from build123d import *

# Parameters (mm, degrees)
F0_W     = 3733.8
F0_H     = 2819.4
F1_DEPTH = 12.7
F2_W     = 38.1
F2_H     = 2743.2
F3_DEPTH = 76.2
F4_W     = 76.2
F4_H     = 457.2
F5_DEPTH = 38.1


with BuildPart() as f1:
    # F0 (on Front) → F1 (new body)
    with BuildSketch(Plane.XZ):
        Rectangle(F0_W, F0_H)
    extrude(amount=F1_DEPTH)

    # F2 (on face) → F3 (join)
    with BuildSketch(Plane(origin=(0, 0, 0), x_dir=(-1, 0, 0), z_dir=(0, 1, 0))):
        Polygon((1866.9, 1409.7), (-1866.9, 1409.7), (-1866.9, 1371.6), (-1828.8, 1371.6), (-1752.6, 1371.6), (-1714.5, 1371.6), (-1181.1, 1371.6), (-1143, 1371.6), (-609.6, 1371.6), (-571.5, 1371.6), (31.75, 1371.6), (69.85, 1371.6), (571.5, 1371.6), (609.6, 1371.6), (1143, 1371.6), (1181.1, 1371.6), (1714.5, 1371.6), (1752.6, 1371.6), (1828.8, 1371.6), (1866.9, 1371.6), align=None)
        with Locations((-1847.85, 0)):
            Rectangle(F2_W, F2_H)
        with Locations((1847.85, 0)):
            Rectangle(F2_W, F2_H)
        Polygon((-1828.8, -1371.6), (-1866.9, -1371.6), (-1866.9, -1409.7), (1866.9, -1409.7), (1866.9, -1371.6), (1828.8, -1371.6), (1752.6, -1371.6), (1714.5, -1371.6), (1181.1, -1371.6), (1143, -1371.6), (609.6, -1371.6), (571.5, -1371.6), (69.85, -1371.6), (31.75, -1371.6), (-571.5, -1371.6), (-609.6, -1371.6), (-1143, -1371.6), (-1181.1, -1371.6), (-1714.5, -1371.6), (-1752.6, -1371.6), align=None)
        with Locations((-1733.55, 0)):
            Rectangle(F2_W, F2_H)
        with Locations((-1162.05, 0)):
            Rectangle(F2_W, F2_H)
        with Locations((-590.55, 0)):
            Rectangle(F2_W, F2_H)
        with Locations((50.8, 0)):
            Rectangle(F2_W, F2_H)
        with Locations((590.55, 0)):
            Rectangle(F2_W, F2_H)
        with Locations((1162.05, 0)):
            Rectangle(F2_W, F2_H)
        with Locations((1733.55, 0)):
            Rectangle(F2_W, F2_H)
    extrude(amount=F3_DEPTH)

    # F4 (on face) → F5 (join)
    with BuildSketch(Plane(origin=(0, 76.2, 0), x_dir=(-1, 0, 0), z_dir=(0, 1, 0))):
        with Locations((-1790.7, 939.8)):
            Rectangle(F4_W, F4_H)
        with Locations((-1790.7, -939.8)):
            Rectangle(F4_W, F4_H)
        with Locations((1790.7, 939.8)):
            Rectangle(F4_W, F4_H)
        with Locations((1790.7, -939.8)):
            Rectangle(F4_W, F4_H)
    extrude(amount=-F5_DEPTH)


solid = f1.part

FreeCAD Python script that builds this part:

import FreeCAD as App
import Part
import Sketcher
from FreeCAD import Vector
Q = App.Units.Quantity

doc = App.newDocument("Part")
body = doc.addObject("PartDesign::Body", "Body")

# Sketch on XZ plane
sketch1 = body.newObject("Sketcher::SketchObject", "Sketch")
sketch1.AttachmentSupport = (doc.getObject("XZ_Plane"), [""])
sketch1.MapMode = "FlatFace"
sketch1.addGeometry([
    Part.LineSegment(Vector(-1867, 1410, 0), Vector(-1867, -1410, 0)),
    Part.LineSegment(Vector(-1867, -1410, 0), Vector(1867, -1410, 0)),
    Part.LineSegment(Vector(1867, -1410, 0), Vector(1867, 1410, 0)),
    Part.LineSegment(Vector(1867, 1410, 0), Vector(-1867, 1410, 0)),
], False)
sketch1.addConstraint([
    Sketcher.Constraint("Coincident", 0, 2, 1, 1),
    Sketcher.Constraint("Coincident", 1, 2, 2, 1),
    Sketcher.Constraint("Coincident", 2, 2, 3, 1),
    Sketcher.Constraint("Coincident", 3, 2, 0, 1),
    Sketcher.Constraint("Vertical", 0),
    Sketcher.Constraint("Horizontal", 1),
    Sketcher.Constraint("Vertical", 2),
    Sketcher.Constraint("Horizontal", 3),
    Sketcher.Constraint("Symmetric", 0, 2, 2, 2, -1, 1),
    Sketcher.Constraint("DistanceX", 1, 1, 1, 2, Q("147 in")),
    Sketcher.Constraint("DistanceY", 0, 2, 0, 1, Q("111 in")),
])
pad1 = body.newObject("PartDesign::Pad", "Pad")
pad1.Profile = sketch1
pad1.Length = Q("0.5 in")

# Sketch on XZ plane
sketch2 = body.newObject("Sketcher::SketchObject", "Sketch001")
sketch2.AttachmentSupport = (doc.getObject("XZ_Plane"), [""])
sketch2.MapMode = "FlatFace"
sketch2.addGeometry([
    Part.LineSegment(Vector(-1867, 1410, 0), Vector(1867, 1410, 0)),  # 0
    Part.LineSegment(Vector(1867, 1410, 0), Vector(1867, -1410, 0)),  # 1
    Part.LineSegment(Vector(1867, -1410, 0), Vector(-1867, -1410, 0)),  # 2
    Part.LineSegment(Vector(-1867, -1410, 0), Vector(-1867, 1410, 0)),  # 3
    Part.LineSegment(Vector(1829, -1372, 0), Vector(1829, 1372, 0)),  # 4
    Part.LineSegment(Vector(1829, 1372, 0), Vector(1753, 1372, 0)),  # 5
    Part.LineSegment(Vector(1753, 1372, 0), Vector(1753, -1372, 0)),  # 6
    Part.LineSegment(Vector(1753, -1372, 0), Vector(1829, -1372, 0)),  # 7
    Part.LineSegment(Vector(1714, 1372, 0), Vector(1181, 1372, 0)),  # 8
    Part.LineSegment(Vector(1181, 1372, 0), Vector(1181, -1372, 0)),  # 9
    Part.LineSegment(Vector(1181, -1372, 0), Vector(1714, -1372, 0)),  # 10
    Part.LineSegment(Vector(1714, -1372, 0), Vector(1714, 1372, 0)),  # 11
    Part.LineSegment(Vector(1143, 1372, 0), Vector(610, 1372, 0)),  # 12
    Part.LineSegment(Vector(610, 1372, 0), Vector(610, -1372, 0)),  # 13
    Part.LineSegment(Vector(610, -1372, 0), Vector(1143, -1372, 0)),  # 14
    Part.LineSegment(Vector(1143, -1372, 0), Vector(1143, 1372, 0)),  # 15
    Part.LineSegment(Vector(572, 1372, 0), Vector(-32, 1372, 0)),  # 16
    Part.LineSegment(Vector(-32, 1372, 0), Vector(-32, -1372, 0)),  # 17
    Part.LineSegment(Vector(-32, -1372, 0), Vector(572, -1372, 0)),  # 18
    Part.LineSegment(Vector(572, -1372, 0), Vector(572, 1372, 0)),  # 19
    Part.LineSegment(Vector(-70, 1372, 0), Vector(-572, 1372, 0)),  # 20
    Part.LineSegment(Vector(-572, 1372, 0), Vector(-572, -1372, 0)),  # 21
    Part.LineSegment(Vector(-572, -1372, 0), Vector(-70, -1372, 0)),  # 22
    Part.LineSegment(Vector(-70, -1372, 0), Vector(-70, 1372, 0)),  # 23
    Part.LineSegment(Vector(-610, 1372, 0), Vector(-1143, 1372, 0)),  # 24
    Part.LineSegment(Vector(-1143, 1372, 0), Vector(-1143, -1372, 0)),  # 25
    Part.LineSegment(Vector(-1143, -1372, 0), Vector(-610, -1372, 0)),  # 26
    Part.LineSegment(Vector(-610, -1372, 0), Vector(-610, 1372, 0)),  # 27
    Part.LineSegment(Vector(-1181, 1372, 0), Vector(-1714, 1372, 0)),  # 28
    Part.LineSegment(Vector(-1714, 1372, 0), Vector(-1714, -1372, 0)),  # 29
    Part.LineSegment(Vector(-1714, -1372, 0), Vector(-1181, -1372, 0)),  # 30
    Part.LineSegment(Vector(-1181, -1372, 0), Vector(-1181, 1372, 0)),  # 31
    Part.LineSegment(Vector(-1753, 1372, 0), Vector(-1829, 1372, 0)),  # 32
    Part.LineSegment(Vector(-1829, 1372, 0), Vector(-1829, -1372, 0)),  # 33
    Part.LineSegment(Vector(-1829, -1372, 0), Vector(-1753, -1372, 0)),  # 34
    Part.LineSegment(Vector(-1753, -1372, 0), Vector(-1753, 1372, 0)),  # 35
], False)
sketch2.addConstraint([
    Sketcher.Constraint("Coincident", 0, 2, 1, 1),
    Sketcher.Constraint("Coincident", 1, 2, 2, 1),
    Sketcher.Constraint("Coincident", 2, 2, 3, 1),
    Sketcher.Constraint("Coincident", 3, 2, 0, 1),
    Sketcher.Constraint("Coincident", 4, 2, 5, 1),
    Sketcher.Constraint("Coincident", 5, 2, 6, 1),
    Sketcher.Constraint("Coincident", 6, 2, 7, 1),
    Sketcher.Constraint("Coincident", 7, 2, 4, 1),
    Sketcher.Constraint("Coincident", 8, 2, 9, 1),
    Sketcher.Constraint("Coincident", 9, 2, 10, 1),
    Sketcher.Constraint("Coincident", 10, 2, 11, 1),
    Sketcher.Constraint("Coincident", 11, 2, 8, 1),
    Sketcher.Constraint("Coincident", 12, 2, 13, 1),
    Sketcher.Constraint("Coincident", 13, 2, 14, 1),
    Sketcher.Constraint("Coincident", 14, 2, 15, 1),
    Sketcher.Constraint("Coincident", 15, 2, 12, 1),
    Sketcher.Constraint("Coincident", 16, 2, 17, 1),
    Sketcher.Constraint("Coincident", 17, 2, 18, 1),
    Sketcher.Constraint("Coincident", 18, 2, 19, 1),
    Sketcher.Constraint("Coincident", 19, 2, 16, 1),
    Sketcher.Constraint("Coincident", 20, 2, 21, 1),
    Sketcher.Constraint("Coincident", 21, 2, 22, 1),
    Sketcher.Constraint("Coincident", 22, 2, 23, 1),
    Sketcher.Constraint("Coincident", 23, 2, 20, 1),
    Sketcher.Constraint("Coincident", 24, 2, 25, 1),
    Sketcher.Constraint("Coincident", 25, 2, 26, 1),
    Sketcher.Constraint("Coincident", 26, 2, 27, 1),
    Sketcher.Constraint("Coincident", 27, 2, 24, 1),
    Sketcher.Constraint("Coincident", 28, 2, 29, 1),
    Sketcher.Constraint("Coincident", 29, 2, 30, 1),
    Sketcher.Constraint("Coincident", 30, 2, 31, 1),
    Sketcher.Constraint("Coincident", 31, 2, 28, 1),
    Sketcher.Constraint("Coincident", 32, 2, 33, 1),
    Sketcher.Constraint("Coincident", 33, 2, 34, 1),
    Sketcher.Constraint("Coincident", 34, 2, 35, 1),
    Sketcher.Constraint("Coincident", 35, 2, 32, 1),
    Sketcher.Constraint("Horizontal", 0),
    Sketcher.Constraint("Vertical", 1),
    Sketcher.Constraint("Horizontal", 2),
    Sketcher.Constraint("Vertical", 3),
    Sketcher.Constraint("Vertical", 4),
    Sketcher.Constraint("Horizontal", 5),
    Sketcher.Constraint("Vertical", 6),
    Sketcher.Constraint("Horizontal", 7),
    Sketcher.Constraint("Horizontal", 8),
    Sketcher.Constraint("Vertical", 9),
    Sketcher.Constraint("Horizontal", 10),
    Sketcher.Constraint("Vertical", 11),
    Sketcher.Constraint("Horizontal", 12),
    Sketcher.Constraint("Vertical", 13),
    Sketcher.Constraint("Horizontal", 14),
    Sketcher.Constraint("Vertical", 15),
    Sketcher.Constraint("Horizontal", 16),
    Sketcher.Constraint("Vertical", 17),
    Sketcher.Constraint("Horizontal", 18),
    Sketcher.Constraint("Vertical", 19),
    Sketcher.Constraint("Horizontal", 20),
    Sketcher.Constraint("Vertical", 21),
    Sketcher.Constraint("Horizontal", 22),
    Sketcher.Constraint("Vertical", 23),
    Sketcher.Constraint("Horizontal", 24),
    Sketcher.Constraint("Vertical", 25),
    Sketcher.Constraint("Horizontal", 26),
    Sketcher.Constraint("Vertical", 27),
    Sketcher.Constraint("Horizontal", 28),
    Sketcher.Constraint("Vertical", 29),
    Sketcher.Constraint("Horizontal", 30),
    Sketcher.Constraint("Vertical", 31),
    Sketcher.Constraint("Horizontal", 32),
    Sketcher.Constraint("Vertical", 33),
    Sketcher.Constraint("Horizontal", 34),
    Sketcher.Constraint("Vertical", 35),
    Sketcher.Constraint("Symmetric", 0, 2, 2, 2, -1, 1),
    Sketcher.Constraint("Symmetric", 18, 2, 20, 2, -1, 1),
    Sketcher.Constraint("Symmetric", 14, 2, 24, 2, -1, 1),
    Sketcher.Constraint("Symmetric", 12, 2, 26, 2, -1, 1),
    Sketcher.Constraint("Symmetric", 10, 2, 28, 2, -1, 1),
    Sketcher.Constraint("Symmetric", 8, 2, 30, 2, -1, 1),
    Sketcher.Constraint("Symmetric", 7, 2, 32, 2, -1, 1),
    Sketcher.Constraint("Symmetric", 5, 2, 34, 2, -1, 1),
    Sketcher.Constraint("Horizontal", 5, 2, 8, 2),
    Sketcher.Constraint("Horizontal", 7, 2, 9, 2),
    Sketcher.Constraint("Horizontal", 11, 2, 12, 2),
    Sketcher.Constraint("Horizontal", 10, 2, 13, 2),
    Sketcher.Constraint("Horizontal", 15, 2, 16, 2),
    Sketcher.Constraint("Horizontal", 14, 2, 17, 2),
    Sketcher.Constraint("Horizontal", 19, 2, 20, 2),
    Sketcher.Constraint("Horizontal", 18, 2, 21, 2),
    Sketcher.Constraint("Equal", 10, 12),
    Sketcher.Constraint("DistanceX", 0, 1, 0, 2, Q("147 in")),
    Sketcher.Constraint("DistanceX", 5, 2, 5, 1, Q("3 in")),
    Sketcher.Constraint("DistanceX", 8, 2, 8, 1, Q("21 in")),
    Sketcher.Constraint("DistanceY", 1, 2, 1, 1, Q("111 in")),
    Sketcher.Constraint("DistanceY", 4, 1, 4, 2, Q("108 in")),
    Sketcher.Constraint("DistanceX", -1, 1, 4, 2, Q("72 in")),
    Sketcher.Constraint("DistanceX", -1, 1, 12, 2, Q("24 in")),
    Sketcher.Constraint("DistanceX", 8, 2, 0, 2, Q("27 in")),
    Sketcher.Constraint("DistanceX", 18, 2, 9, 2, Q("24 in")),
    Sketcher.Constraint("DistanceX", 16, 2, 16, 1, Q("23.75 in")),
    Sketcher.Constraint("DistanceX", 20, 2, 20, 1, Q("19.75 in")),
])
pad2 = body.newObject("PartDesign::Pad", "Pad001")
pad2.Profile = sketch2
pad2.Length = Q("3 in")
pad2.Reversed = True

# Sketch on XZ plane
sketch3 = body.newObject("Sketcher::SketchObject", "Sketch002")
sketch3.AttachmentSupport = (doc.getObject("XZ_Plane"), [""])
sketch3.MapMode = "FlatFace"
sketch3.AttachmentOffset = App.Placement(Vector(0, 0, -3 * 25.4), App.Rotation())
sketch3.addGeometry([
    Part.LineSegment(Vector(1829, 1168, 0), Vector(1829, 711, 0)),  # 0
    Part.LineSegment(Vector(1829, 711, 0), Vector(1753, 711, 0)),  # 1
    Part.LineSegment(Vector(1753, 711, 0), Vector(1753, 1168, 0)),  # 2
    Part.LineSegment(Vector(1753, 1168, 0), Vector(1829, 1168, 0)),  # 3
    Part.LineSegment(Vector(1829, -711, 0), Vector(1829, -1168, 0)),  # 4
    Part.LineSegment(Vector(1829, -1168, 0), Vector(1753, -1168, 0)),  # 5
    Part.LineSegment(Vector(1753, -1168, 0), Vector(1753, -711, 0)),  # 6
    Part.LineSegment(Vector(1753, -711, 0), Vector(1829, -711, 0)),  # 7
    Part.LineSegment(Vector(-1753, 1168, 0), Vector(-1753, 711, 0)),  # 8
    Part.LineSegment(Vector(-1753, 711, 0), Vector(-1829, 711, 0)),  # 9
    Part.LineSegment(Vector(-1829, 711, 0), Vector(-1829, 1168, 0)),  # 10
    Part.LineSegment(Vector(-1829, 1168, 0), Vector(-1753, 1168, 0)),  # 11
    Part.LineSegment(Vector(-1753, -711, 0), Vector(-1753, -1168, 0)),  # 12
    Part.LineSegment(Vector(-1753, -1168, 0), Vector(-1829, -1168, 0)),  # 13
    Part.LineSegment(Vector(-1829, -1168, 0), Vector(-1829, -711, 0)),  # 14
    Part.LineSegment(Vector(-1829, -711, 0), Vector(-1753, -711, 0)),  # 15
], False)
sketch3.addConstraint([
    Sketcher.Constraint("Coincident", 0, 2, 1, 1),
    Sketcher.Constraint("Coincident", 1, 2, 2, 1),
    Sketcher.Constraint("Coincident", 2, 2, 3, 1),
    Sketcher.Constraint("Coincident", 3, 2, 0, 1),
    Sketcher.Constraint("Coincident", 4, 2, 5, 1),
    Sketcher.Constraint("Coincident", 5, 2, 6, 1),
    Sketcher.Constraint("Coincident", 6, 2, 7, 1),
    Sketcher.Constraint("Coincident", 7, 2, 4, 1),
    Sketcher.Constraint("Coincident", 8, 2, 9, 1),
    Sketcher.Constraint("Coincident", 9, 2, 10, 1),
    Sketcher.Constraint("Coincident", 10, 2, 11, 1),
    Sketcher.Constraint("Coincident", 11, 2, 8, 1),
    Sketcher.Constraint("Coincident", 12, 2, 13, 1),
    Sketcher.Constraint("Coincident", 13, 2, 14, 1),
    Sketcher.Constraint("Coincident", 14, 2, 15, 1),
    Sketcher.Constraint("Coincident", 15, 2, 12, 1),
    Sketcher.Constraint("Vertical", 0),
    Sketcher.Constraint("Horizontal", 1),
    Sketcher.Constraint("Vertical", 2),
    Sketcher.Constraint("Horizontal", 3),
    Sketcher.Constraint("Vertical", 4),
    Sketcher.Constraint("Horizontal", 5),
    Sketcher.Constraint("Vertical", 6),
    Sketcher.Constraint("Horizontal", 7),
    Sketcher.Constraint("Vertical", 8),
    Sketcher.Constraint("Horizontal", 9),
    Sketcher.Constraint("Vertical", 10),
    Sketcher.Constraint("Horizontal", 11),
    Sketcher.Constraint("Vertical", 12),
    Sketcher.Constraint("Horizontal", 13),
    Sketcher.Constraint("Vertical", 14),
    Sketcher.Constraint("Horizontal", 15),
    Sketcher.Constraint("Symmetric", 6, 2, 8, 2, -1, 1),
    Sketcher.Constraint("Symmetric", 4, 2, 10, 2, -1, 1),
    Sketcher.Constraint("Symmetric", 2, 2, 12, 2, -1, 1),
    Sketcher.Constraint("Symmetric", 0, 2, 14, 2, -1, 1),
    Sketcher.Constraint("Symmetric", 1, 2, 8, 2, -2),
    Sketcher.Constraint("Symmetric", 3, 2, 10, 2, -2),
    Sketcher.Constraint("DistanceX", 1, 2, 1, 1, Q("3 in")),
    Sketcher.Constraint("DistanceY", 0, 2, 0, 1, Q("18 in")),
    Sketcher.Constraint("DistanceX", -1, 1, 0, 2, Q("72 in")),
    Sketcher.Constraint("DistanceY", -1, 1, 0, 2, Q("28 in")),
])
pad3 = body.newObject("PartDesign::Pad", "Pad002")
pad3.Profile = sketch3
pad3.Length = Q("1.5 in")

doc.recompute()
